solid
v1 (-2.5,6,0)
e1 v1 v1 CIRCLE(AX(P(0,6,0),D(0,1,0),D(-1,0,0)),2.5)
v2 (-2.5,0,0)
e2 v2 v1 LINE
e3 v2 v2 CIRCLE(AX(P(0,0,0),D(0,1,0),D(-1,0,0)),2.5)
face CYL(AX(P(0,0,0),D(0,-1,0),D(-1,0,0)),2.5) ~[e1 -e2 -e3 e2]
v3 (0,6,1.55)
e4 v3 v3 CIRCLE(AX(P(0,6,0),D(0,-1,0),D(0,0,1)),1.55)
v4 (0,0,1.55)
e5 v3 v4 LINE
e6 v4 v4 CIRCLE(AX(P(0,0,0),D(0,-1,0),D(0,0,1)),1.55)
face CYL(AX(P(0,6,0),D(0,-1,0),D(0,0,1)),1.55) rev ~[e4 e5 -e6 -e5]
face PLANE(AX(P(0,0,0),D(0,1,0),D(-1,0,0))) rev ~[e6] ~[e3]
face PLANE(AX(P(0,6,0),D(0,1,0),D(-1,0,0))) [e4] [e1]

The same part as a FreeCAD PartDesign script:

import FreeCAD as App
import Part
import Sketcher
from FreeCAD import Vector

doc = App.newDocument("Part")
body = doc.addObject("PartDesign::Body", "Body")

# Sketch on XZ plane
sketch1 = body.newObject("Sketcher::SketchObject", "Sketch")
sketch1.AttachmentSupport = (doc.getObject("XZ_Plane"), [""])
sketch1.MapMode = "FlatFace"
sketch1.addGeometry(Part.Circle(Vector(0, 0, 0), Vector(0, 0, 1), 2.5), False)
sketch1.addConstraint([
    Sketcher.Constraint("Coincident", 0, 3, -1, 1),
    Sketcher.Constraint("Diameter", 0, 5.0),
])
pad1 = body.newObject("PartDesign::Pad", "Pad")
pad1.Profile = sketch1
pad1.Length = 6
pad1.Reversed = True

# Sketch on XZ plane
sketch2 = body.newObject("Sketcher::SketchObject", "Sketch001")
sketch2.AttachmentSupport = (doc.getObject("XZ_Plane"), [""])
sketch2.MapMode = "FlatFace"
sketch2.AttachmentOffset = App.Placement(Vector(0, 0, -6), App.Rotation())
sketch2.addGeometry(Part.Circle(Vector(0, 0, 0), Vector(0, 0, 1), 1.6), False)
sketch2.addConstraint([
    Sketcher.Constraint("Coincident", 0, 3, -1, 1),
    Sketcher.Constraint("Diameter", 0, 3.1),
])
doc.recompute()
hole = body.newObject("PartDesign::Hole", "Hole")
hole.Profile = sketch2
hole.ThreadType = "None"
hole.Diameter = 3.1
hole.DepthType = "ThroughAll"
hole.Reversed = True

doc.recompute()
